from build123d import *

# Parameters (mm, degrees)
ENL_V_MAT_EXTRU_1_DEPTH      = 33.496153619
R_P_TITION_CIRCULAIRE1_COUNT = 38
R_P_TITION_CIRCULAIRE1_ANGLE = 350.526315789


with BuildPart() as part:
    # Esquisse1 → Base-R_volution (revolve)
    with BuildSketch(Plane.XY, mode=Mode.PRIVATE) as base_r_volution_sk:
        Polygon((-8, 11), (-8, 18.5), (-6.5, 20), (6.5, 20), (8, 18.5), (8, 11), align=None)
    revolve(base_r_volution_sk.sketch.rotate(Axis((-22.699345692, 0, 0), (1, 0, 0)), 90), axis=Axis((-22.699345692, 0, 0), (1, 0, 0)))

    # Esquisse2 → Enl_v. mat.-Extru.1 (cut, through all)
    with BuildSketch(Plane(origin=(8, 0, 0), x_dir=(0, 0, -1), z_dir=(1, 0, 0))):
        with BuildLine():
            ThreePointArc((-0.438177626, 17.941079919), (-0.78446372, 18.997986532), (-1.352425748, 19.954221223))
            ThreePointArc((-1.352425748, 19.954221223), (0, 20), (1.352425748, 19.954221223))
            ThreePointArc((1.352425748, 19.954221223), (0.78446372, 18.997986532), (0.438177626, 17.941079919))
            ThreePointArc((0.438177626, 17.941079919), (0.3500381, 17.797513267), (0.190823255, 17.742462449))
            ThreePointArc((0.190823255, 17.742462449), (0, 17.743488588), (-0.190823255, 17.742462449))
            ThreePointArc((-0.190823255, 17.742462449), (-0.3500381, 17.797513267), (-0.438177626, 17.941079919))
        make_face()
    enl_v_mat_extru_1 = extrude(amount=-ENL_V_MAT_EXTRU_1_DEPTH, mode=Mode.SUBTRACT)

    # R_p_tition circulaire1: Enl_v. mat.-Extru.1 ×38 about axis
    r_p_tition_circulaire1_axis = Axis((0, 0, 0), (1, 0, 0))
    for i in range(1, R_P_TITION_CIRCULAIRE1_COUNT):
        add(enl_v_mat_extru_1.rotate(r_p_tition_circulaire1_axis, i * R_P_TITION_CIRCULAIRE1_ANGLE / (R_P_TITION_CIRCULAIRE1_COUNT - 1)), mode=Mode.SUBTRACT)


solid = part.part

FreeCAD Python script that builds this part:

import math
import FreeCAD as App
import Part
import Sketcher
from FreeCAD import Vector

doc = App.newDocument("Part")
body = doc.addObject("PartDesign::Body", "Body")

sketch1 = body.newObject("Sketcher::SketchObject", "Sketch")
sketch1.AttachmentSupport = (doc.getObject("XY_Plane"), [""])
sketch1.MapMode = "FlatFace"
sketch1.addGeometry([
    Part.LineSegment(Vector(-8, 18.5, 0), Vector(-8, 11, 0)),
    Part.LineSegment(Vector(-8, 11, 0), Vector(8, 11, 0)),
    Part.LineSegment(Vector(8, 11, 0), Vector(8, 18.5, 0)),
    Part.LineSegment(Vector(8, 18.5, 0), Vector(6.5, 20, 0)),
    Part.LineSegment(Vector(6.5, 20, 0), Vector(-6.5, 20, 0)),
    Part.LineSegment(Vector(-6.5, 20, 0), Vector(-8, 18.5, 0)),
], False)
sketch1.addConstraint([
    Sketcher.Constraint("Coincident", 0, 2, 1, 1),
    Sketcher.Constraint("Coincident", 1, 2, 2, 1),
    Sketcher.Constraint("Coincident", 2, 2, 3, 1),
    Sketcher.Constraint("Coincident", 3, 2, 4, 1),
    Sketcher.Constraint("Coincident", 4, 2, 5, 1),
    Sketcher.Constraint("Coincident", 5, 2, 0, 1),
    Sketcher.Constraint("Vertical", 0),
    Sketcher.Constraint("Horizontal", 1),
    Sketcher.Constraint("Vertical", 2),
    Sketcher.Constraint("Horizontal", 4),
    Sketcher.Constraint("Symmetric", 2, 2, 5, 2, -2),
    Sketcher.Constraint("Perpendicular", 3, 5),
    Sketcher.Constraint("Equal", 3, 5),
    Sketcher.Constraint("DistanceX", 1, 1, 1, 2, 16.0),
    Sketcher.Constraint("DistanceX", 4, 2, 4, 1, 13.0),
    Sketcher.Constraint("DistanceY", 0, 2, 0, 1, 7.5),
    Sketcher.Constraint("DistanceY", -1, 1, 0, 2, 11.0),
])
revolution = body.newObject("PartDesign::Revolution", "Revolution")
revolution.Profile = sketch1
revolution.ReferenceAxis = (sketch1, ["H_Axis"])
revolution.Angle = 360

sketch2 = body.newObject("Sketcher::SketchObject", "Sketch001")
sketch2.AttachmentSupport = (doc.getObject("YZ_Plane"), [""])
sketch2.MapMode = "FlatFace"
sketch2.AttachmentOffset = App.Placement(Vector(0, 0, 8), App.Rotation())
sketch2.addGeometry([
    Part.ArcOfCircle(Part.Circle(Vector(16.897141, 5.410449, 0), Vector(0, 0, 1), 5.080678), math.radians(-78.142852), math.radians(-53.007744)),
    Part.ArcOfCircle(Part.Circle(Vector(17.992448, 0.193512, 0), Vector(0, 0, 1), 0.25), math.radians(101.857147), math.radians(180.616203)),
    Part.ArcOfCircle(Part.Circle(Vector(0.000002, 0, 0), Vector(0, 0, 1), 17.743487), math.radians(-0.616202), math.radians(0.616202)),
    Part.ArcOfCircle(Part.Circle(Vector(17.992448, -0.193512, 0), Vector(0, 0, 1), 0.25), math.radians(179.383797), math.radians(258.142853)),
    Part.ArcOfCircle(Part.Circle(Vector(16.897141, -5.410449, 0), Vector(0, 0, 1), 5.080678), math.radians(53.007744), math.radians(78.142852)),
    Part.ArcOfCircle(Part.Circle(Vector(0, 0, 0), Vector(0, 0, 1), 20), math.radians(-3.877373), math.radians(3.877373)),
], False)
sketch2.addConstraint([
    Sketcher.Constraint("Tangent", 0, 1, 1, 1),
    Sketcher.Constraint("Tangent", 1, 2, 2, 2),
    Sketcher.Constraint("Tangent", 2, 1, 3, 1),
    Sketcher.Constraint("Tangent", 3, 2, 4, 2),
    Sketcher.Constraint("Coincident", 4, 1, 5, 1),
    Sketcher.Constraint("Coincident", 5, 2, 0, 2),
    Sketcher.Constraint("Coincident", 2, 3, -1, 1),
    Sketcher.Constraint("Coincident", 5, 3, -1, 1),
    Sketcher.Constraint("Equal", 1, 3),
    Sketcher.Constraint("Equal", 0, 4),
    Sketcher.Constraint("Symmetric", 0, 3, 4, 3, -1),
    Sketcher.Constraint("Radius", 5, 20.0),
    Sketcher.Constraint("Radius", 1, 0.25),
    Sketcher.Constraint("Radius", 0, 5.080678),
    Sketcher.Constraint("Radius", 2, 17.743487),
    Sketcher.Constraint("DistanceY", 2, 1, 0, 1, 0.629001),
    Sketcher.Constraint("DistanceX", -1, 1, 0, 3, 16.897141),
])
pocket1 = body.newObject("PartDesign::Pocket", "Pocket")
pocket1.Profile = sketch2
pocket1.Type = "ThroughAll"
doc.recompute()

polarpattern = body.newObject("PartDesign::PolarPattern", "PolarPattern")
polarpattern.Originals = [pocket1]
polarpattern.Axis = (doc.getObject("X_Axis"), [""])
polarpattern.Angle = 360
polarpattern.Occurrences = 38
body.Tip = polarpattern

doc.recompute()
